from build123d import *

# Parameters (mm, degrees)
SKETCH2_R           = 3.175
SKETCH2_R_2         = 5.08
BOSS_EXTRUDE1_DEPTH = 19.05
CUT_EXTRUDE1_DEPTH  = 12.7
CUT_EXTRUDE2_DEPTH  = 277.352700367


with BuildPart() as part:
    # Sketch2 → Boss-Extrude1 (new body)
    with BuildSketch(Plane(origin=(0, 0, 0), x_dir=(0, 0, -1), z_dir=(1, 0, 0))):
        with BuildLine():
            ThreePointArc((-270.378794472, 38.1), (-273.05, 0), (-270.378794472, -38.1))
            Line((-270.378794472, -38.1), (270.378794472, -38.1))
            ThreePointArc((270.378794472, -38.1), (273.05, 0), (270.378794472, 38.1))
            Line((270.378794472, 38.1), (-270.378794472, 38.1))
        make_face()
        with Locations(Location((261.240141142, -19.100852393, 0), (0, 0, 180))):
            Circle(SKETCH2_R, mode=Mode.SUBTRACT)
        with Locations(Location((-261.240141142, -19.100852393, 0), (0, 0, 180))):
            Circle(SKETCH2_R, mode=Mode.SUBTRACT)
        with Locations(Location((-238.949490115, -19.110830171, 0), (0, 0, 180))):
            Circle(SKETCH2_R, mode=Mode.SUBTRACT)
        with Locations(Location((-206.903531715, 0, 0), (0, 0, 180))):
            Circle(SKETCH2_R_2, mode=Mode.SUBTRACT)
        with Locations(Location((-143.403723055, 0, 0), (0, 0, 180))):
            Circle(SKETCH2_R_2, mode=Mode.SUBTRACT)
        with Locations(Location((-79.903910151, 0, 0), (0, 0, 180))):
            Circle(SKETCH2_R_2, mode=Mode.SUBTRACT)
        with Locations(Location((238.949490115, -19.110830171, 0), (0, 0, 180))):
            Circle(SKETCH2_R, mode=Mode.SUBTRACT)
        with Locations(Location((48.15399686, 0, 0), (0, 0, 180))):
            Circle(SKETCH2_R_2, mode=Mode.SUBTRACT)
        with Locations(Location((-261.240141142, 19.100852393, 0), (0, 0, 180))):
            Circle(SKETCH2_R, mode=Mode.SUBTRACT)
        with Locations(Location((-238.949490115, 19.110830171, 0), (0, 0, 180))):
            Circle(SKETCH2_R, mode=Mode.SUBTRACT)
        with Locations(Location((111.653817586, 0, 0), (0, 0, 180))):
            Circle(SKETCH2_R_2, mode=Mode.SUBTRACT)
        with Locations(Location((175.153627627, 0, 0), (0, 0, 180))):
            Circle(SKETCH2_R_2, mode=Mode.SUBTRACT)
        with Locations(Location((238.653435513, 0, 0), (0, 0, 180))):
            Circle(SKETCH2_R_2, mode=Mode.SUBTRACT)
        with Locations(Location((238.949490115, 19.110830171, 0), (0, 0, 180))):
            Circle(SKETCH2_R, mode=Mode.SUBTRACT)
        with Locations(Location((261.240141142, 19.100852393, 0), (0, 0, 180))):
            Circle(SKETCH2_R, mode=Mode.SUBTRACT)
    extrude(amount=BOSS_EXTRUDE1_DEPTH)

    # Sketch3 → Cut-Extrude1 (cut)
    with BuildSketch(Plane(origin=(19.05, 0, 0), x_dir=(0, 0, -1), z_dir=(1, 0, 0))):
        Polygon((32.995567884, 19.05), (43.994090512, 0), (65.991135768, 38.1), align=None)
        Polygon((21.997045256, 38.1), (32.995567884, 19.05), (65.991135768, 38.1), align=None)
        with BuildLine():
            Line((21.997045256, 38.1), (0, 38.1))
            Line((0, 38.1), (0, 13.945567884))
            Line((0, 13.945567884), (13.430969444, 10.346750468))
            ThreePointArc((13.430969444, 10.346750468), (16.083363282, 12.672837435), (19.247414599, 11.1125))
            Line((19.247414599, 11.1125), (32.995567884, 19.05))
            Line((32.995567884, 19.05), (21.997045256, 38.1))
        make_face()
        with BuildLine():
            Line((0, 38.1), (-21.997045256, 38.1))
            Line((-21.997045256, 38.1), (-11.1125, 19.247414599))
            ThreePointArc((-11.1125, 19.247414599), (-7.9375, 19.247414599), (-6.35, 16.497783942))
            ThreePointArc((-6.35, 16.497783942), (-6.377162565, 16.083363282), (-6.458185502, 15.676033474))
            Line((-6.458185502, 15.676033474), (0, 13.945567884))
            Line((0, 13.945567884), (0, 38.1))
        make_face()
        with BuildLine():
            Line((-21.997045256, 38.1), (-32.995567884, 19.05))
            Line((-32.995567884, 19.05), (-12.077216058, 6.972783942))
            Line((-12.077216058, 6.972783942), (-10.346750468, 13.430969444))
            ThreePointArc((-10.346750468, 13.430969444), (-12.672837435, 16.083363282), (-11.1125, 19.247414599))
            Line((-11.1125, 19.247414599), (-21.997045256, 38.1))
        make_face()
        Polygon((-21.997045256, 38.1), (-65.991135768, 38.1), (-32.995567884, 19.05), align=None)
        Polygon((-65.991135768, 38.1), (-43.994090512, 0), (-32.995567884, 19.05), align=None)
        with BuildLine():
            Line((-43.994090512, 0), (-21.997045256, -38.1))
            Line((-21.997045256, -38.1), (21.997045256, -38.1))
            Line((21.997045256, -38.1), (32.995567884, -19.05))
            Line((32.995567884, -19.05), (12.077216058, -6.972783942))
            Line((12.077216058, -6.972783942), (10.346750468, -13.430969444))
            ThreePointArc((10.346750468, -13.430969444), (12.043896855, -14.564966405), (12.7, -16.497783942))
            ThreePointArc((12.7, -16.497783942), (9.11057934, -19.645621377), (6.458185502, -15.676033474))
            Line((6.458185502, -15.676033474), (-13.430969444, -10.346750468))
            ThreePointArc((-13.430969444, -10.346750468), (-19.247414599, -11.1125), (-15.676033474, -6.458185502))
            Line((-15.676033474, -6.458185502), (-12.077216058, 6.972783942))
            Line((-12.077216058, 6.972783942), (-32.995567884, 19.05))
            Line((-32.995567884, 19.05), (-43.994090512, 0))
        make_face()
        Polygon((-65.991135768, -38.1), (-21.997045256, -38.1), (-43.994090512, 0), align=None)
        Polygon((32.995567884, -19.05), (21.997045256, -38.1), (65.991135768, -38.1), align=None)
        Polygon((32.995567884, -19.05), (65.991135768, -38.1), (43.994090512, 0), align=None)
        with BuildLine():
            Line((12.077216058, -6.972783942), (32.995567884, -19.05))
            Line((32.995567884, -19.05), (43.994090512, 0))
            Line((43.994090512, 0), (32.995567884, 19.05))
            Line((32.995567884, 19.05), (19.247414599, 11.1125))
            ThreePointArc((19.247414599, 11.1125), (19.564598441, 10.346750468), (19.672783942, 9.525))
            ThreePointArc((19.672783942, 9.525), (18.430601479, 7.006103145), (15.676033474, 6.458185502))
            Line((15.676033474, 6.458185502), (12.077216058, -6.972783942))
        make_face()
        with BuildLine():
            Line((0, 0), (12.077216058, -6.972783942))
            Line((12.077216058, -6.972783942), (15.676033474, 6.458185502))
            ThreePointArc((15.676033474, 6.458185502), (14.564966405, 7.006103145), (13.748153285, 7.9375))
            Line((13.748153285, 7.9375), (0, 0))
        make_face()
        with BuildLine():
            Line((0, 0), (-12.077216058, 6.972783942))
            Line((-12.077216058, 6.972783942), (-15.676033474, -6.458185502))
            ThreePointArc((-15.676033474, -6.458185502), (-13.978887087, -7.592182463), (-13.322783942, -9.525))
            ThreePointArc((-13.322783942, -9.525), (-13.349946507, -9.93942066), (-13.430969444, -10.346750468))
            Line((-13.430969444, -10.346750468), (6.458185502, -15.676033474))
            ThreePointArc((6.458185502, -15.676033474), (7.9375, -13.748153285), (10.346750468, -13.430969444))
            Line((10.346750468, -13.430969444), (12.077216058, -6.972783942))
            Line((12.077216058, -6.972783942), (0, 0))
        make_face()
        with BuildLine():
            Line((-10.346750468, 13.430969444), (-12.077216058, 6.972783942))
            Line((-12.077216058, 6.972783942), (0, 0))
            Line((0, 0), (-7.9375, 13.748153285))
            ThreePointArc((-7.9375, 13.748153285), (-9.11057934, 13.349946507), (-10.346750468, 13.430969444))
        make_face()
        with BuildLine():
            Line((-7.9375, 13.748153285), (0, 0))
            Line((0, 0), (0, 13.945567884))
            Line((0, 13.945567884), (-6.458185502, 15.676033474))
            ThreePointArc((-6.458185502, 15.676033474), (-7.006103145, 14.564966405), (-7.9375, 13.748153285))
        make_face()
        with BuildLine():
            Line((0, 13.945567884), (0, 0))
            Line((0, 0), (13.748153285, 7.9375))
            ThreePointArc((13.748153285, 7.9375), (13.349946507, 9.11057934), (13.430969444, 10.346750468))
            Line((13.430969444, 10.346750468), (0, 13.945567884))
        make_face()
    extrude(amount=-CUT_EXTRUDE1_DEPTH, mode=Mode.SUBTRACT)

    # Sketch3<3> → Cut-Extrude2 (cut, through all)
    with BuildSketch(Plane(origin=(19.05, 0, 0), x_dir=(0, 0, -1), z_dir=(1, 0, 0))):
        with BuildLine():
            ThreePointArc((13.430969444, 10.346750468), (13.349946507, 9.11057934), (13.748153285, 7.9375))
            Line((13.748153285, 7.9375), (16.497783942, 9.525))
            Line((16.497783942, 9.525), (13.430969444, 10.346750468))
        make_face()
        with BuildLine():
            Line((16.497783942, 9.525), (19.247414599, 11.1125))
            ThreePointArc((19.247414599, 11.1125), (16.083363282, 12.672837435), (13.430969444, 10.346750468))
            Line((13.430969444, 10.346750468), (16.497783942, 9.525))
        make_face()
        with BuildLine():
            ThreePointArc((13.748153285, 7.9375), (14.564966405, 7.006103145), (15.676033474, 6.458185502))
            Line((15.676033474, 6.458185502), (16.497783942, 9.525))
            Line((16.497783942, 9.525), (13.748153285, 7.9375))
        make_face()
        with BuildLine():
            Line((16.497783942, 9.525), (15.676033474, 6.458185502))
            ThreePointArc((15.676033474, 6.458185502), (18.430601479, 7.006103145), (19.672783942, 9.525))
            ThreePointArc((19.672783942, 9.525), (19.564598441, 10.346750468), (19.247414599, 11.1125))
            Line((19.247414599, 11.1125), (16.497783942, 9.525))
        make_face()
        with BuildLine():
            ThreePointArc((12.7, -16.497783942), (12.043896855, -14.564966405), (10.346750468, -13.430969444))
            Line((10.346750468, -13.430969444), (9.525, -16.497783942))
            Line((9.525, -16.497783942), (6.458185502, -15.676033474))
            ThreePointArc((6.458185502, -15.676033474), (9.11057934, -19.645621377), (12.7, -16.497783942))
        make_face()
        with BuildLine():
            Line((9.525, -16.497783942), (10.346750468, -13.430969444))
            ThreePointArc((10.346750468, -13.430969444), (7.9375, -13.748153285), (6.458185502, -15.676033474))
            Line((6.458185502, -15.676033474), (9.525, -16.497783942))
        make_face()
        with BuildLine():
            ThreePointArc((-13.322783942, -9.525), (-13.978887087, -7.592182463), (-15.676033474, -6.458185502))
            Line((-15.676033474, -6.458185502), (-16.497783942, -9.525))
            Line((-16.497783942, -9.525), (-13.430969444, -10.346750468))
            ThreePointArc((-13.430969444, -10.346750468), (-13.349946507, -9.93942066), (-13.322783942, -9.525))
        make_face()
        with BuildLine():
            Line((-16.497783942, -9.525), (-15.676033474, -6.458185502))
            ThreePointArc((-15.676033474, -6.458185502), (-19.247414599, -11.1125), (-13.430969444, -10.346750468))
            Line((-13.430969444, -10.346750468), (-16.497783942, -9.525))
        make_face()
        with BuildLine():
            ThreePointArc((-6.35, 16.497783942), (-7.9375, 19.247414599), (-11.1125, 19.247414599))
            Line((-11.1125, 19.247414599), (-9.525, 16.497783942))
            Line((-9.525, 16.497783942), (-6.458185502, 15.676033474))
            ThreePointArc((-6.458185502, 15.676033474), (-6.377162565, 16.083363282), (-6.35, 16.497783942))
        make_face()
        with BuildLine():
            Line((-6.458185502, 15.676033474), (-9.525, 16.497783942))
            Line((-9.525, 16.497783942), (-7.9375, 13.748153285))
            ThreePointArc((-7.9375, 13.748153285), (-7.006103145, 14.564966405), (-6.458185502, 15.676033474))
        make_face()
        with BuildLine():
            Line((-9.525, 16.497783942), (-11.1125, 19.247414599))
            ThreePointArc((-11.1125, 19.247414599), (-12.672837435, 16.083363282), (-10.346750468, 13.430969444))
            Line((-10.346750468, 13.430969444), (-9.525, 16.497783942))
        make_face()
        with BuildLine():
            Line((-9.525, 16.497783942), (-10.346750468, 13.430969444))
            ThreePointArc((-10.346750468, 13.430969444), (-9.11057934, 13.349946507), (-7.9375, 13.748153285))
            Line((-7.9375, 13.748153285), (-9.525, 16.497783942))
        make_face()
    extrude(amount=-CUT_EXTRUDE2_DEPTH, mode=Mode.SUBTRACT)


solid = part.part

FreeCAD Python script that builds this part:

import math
import FreeCAD as App
import Part
import Sketcher

V = App.Vector
Q = App.Units.Quantity

doc = App.newDocument("Part")
params = doc.addObject("Spreadsheet::Sheet", "Params")
for row, (alias, value) in enumerate([
    ("sketch1_diameter", "0.4 in"),
    ("sketch1_diameter2", "0.25 in"),
    ("sketch1_radius", "10.75 in"),
    ("pad1_length", "0.75 in"),
    ("sketch2_radius", "0.125 in"),
    ("pocket1_length", "0.5 in"),
    ("sketch3_radius", "0.125 in"),
], start=1):
    params.set(f"A{row}", alias)
    params.set(f"B{row}", "=" + value)
    params.setAlias(f"B{row}", alias)

body = doc.addObject("PartDesign::Body", "Body")

# Sketch on YZ plane
sketch1 = body.newObject("Sketcher::SketchObject", "Sketch")
sketch1.AttachmentSupport = (doc.getObject("YZ_Plane"), [""])
sketch1.MapMode = "FlatFace"
sketch1.addGeometry([
    Part.ArcOfCircle(Part.Circle(V(0, 0, 0), V(0, 0, 1), 273.05), math.radians(81.979067), math.radians(98.020933)),  # 0
    Part.LineSegment(V(-38.1, 270.378794, 0), V(-38.1, -270.378794, 0)),  # 1
    Part.ArcOfCircle(Part.Circle(V(0, 0, 0), V(0, 0, 1), 273.05), math.radians(-98.020933), math.radians(-81.979067)),  # 2
    Part.LineSegment(V(38.1, -270.378794, 0), V(38.1, 270.378794, 0)),  # 3
    Part.Circle(V(-19.100852, 261.240141, 0), V(0, 0, 1), 3.175),  # 4
    Part.Circle(V(-19.11083, 238.94949, 0), V(0, 0, 1), 3.175),  # 5
    Part.Circle(V(-19.11083, -238.94949, 0), V(0, 0, 1), 3.175),  # 6
    Part.Circle(V(-19.100852, -261.240141, 0), V(0, 0, 1), 3.175),  # 7
    Part.Circle(V(0, 206.903532, 0), V(0, 0, 1), 5.08),  # 8
    Part.Circle(V(0, 143.403723, 0), V(0, 0, 1), 5.08),  # 9
    Part.Circle(V(0, 79.90391, 0), V(0, 0, 1), 5.08),  # 10
    Part.Circle(V(19.100852, 261.240141, 0), V(0, 0, 1), 3.175),  # 11
    Part.Circle(V(19.11083, 238.94949, 0), V(0, 0, 1), 3.175),  # 12
    Part.Circle(V(0, -48.153997, 0), V(0, 0, 1), 5.08),  # 13
    Part.Circle(V(0, -111.653818, 0), V(0, 0, 1), 5.08),  # 14
    Part.Circle(V(0, -175.153628, 0), V(0, 0, 1), 5.08),  # 15
    Part.Circle(V(0, -238.653436, 0), V(0, 0, 1), 5.08),  # 16
    Part.Circle(V(19.11083, -238.94949, 0), V(0, 0, 1), 3.175),  # 17
    Part.Circle(V(19.100852, -261.240141, 0), V(0, 0, 1), 3.175),  # 18
], False)
sketch1.addConstraint([
    Sketcher.Constraint("Coincident", 0, 2, 1, 1),
    Sketcher.Constraint("Coincident", 1, 2, 2, 1),
    Sketcher.Constraint("Coincident", 2, 2, 3, 1),
    Sketcher.Constraint("Coincident", 3, 2, 0, 1),
    Sketcher.Constraint("Vertical", 1),
    Sketcher.Constraint("Vertical", 3),
    Sketcher.Constraint("Coincident", 0, 3, -1, 1),
    Sketcher.Constraint("Coincident", 2, 3, -1, 1),
    Sketcher.Constraint("Equal", 0, 2),
    Sketcher.Constraint("Equal", 4, 5),
    Sketcher.Constraint("Equal", 5, 6),
    Sketcher.Constraint("Equal", 6, 7),
    Sketcher.Constraint("Equal", 8, 9),
    Sketcher.Constraint("Equal", 9, 10),
    Sketcher.Constraint("Equal", 7, 11),
    Sketcher.Constraint("Equal", 11, 12),
    Sketcher.Constraint("Equal", 10, 13),
    Sketcher.Constraint("Equal", 13, 14),
    Sketcher.Constraint("Equal", 14, 15),
    Sketcher.Constraint("Equal", 15, 16),
    Sketcher.Constraint("Equal", 12, 17),
    Sketcher.Constraint("Equal", 17, 18),
    Sketcher.Constraint("Symmetric", 7, 3, 11, 3, -1, 1),
    Sketcher.Constraint("Symmetric", 6, 3, 12, 3, -1, 1),
    Sketcher.Constraint("Symmetric", 5, 3, 17, 3, -1, 1),
    Sketcher.Constraint("Symmetric", 4, 3, 18, 3, -1, 1),
    Sketcher.Constraint("Symmetric", 4, 3, 11, 3, -2),
    Sketcher.Constraint("Symmetric", 5, 3, 12, 3, -2),
    Sketcher.Constraint("PointOnObject", 8, 3, -2),
    Sketcher.Constraint("PointOnObject", 9, 3, -2),
    Sketcher.Constraint("PointOnObject", 10, 3, -2),
    Sketcher.Constraint("PointOnObject", 13, 3, -2),
    Sketcher.Constraint("PointOnObject", 14, 3, -2),
    Sketcher.Constraint("PointOnObject", 15, 3, -2),
    Sketcher.Constraint("PointOnObject", 16, 3, -2),
    Sketcher.Constraint("Horizontal", 1, 2, 2, 2),
    Sketcher.Constraint("Diameter", 8, Q("0.4 in")),
    Sketcher.Constraint("Diameter", 4, Q("0.25 in")),
    Sketcher.Constraint("Radius", 0, Q("10.75 in")),
    Sketcher.Constraint("DistanceX", 1, 2, -1, 1, Q("1.5 in")),
    Sketcher.Constraint("DistanceY", -1, 1, 4, 3, 261.240141),
    Sketcher.Constraint("DistanceX", 5, 3, -1, 1, 19.11083),
    Sketcher.Constraint("DistanceY", -1, 1, 5, 3, 238.94949),
    Sketcher.Constraint("DistanceY", -1, 1, 8, 3, 206.903532),
    Sketcher.Constraint("DistanceY", -1, 1, 10, 3, 79.90391),
    Sketcher.Constraint("DistanceY", 9, 3, 8, 3, 63.499809),
    Sketcher.Constraint("DistanceY", 13, 3, 9, 3, 191.55772),
    Sketcher.Constraint("DistanceY", 14, 3, 13, 3, 63.499821),
    Sketcher.Constraint("DistanceY", 15, 3, 14, 3, 63.49981),
    Sketcher.Constraint("DistanceY", 16, 3, 13, 3, 190.499439),
    Sketcher.Constraint("DistanceX", 4, 3, -1, 1, 19.100852),
])
sketch1.setExpression("Constraints[36]", "Params.sketch1_diameter")
sketch1.setExpression("Constraints[37]", "Params.sketch1_diameter2")
sketch1.setExpression("Constraints[38]", "Params.sketch1_radius")
pad1 = body.newObject("PartDesign::Pad", "Pad")
pad1.Profile = sketch1
pad1.setExpression("Length", "Params.pad1_length")

# Sketch on YZ plane
sketch2 = body.newObject("Sketcher::SketchObject", "Sketch001")
sketch2.AttachmentSupport = (doc.getObject("YZ_Plane"), [""])
sketch2.MapMode = "FlatFace"
sketch2.AttachmentOffset = App.Placement(V(0, 0, 0.75 * 25.4), App.Rotation())
sketch2.addGeometry([
    Part.LineSegment(V(-38.1, -65.991136, 0), V(0, -43.994091, 0)),  # 0
    Part.LineSegment(V(0, -43.994091, 0), V(38.1, -65.991136, 0)),  # 1
    Part.LineSegment(V(38.1, -65.991136, 0), V(38.1, 65.991136, 0)),  # 2
    Part.LineSegment(V(38.1, 65.991136, 0), V(0, 43.994091, 0)),  # 3
    Part.LineSegment(V(0, 43.994091, 0), V(-38.1, 65.991136, 0)),  # 4
    Part.LineSegment(V(-38.1, 65.991136, 0), V(-38.1, -65.991136, 0)),  # 5
    Part.ArcOfCircle(Part.Circle(V(9.525, -16.497784, 0), V(0, 0, 1), 3.175), math.radians(-60), math.radians(75)),  # 6
    Part.ArcOfCircle(Part.Circle(V(9.525, -16.497784, 0), V(0, 0, 1), 3.175), math.radians(-90), math.radians(-60)),  # 7
    Part.ArcOfCircle(Part.Circle(V(9.525, -16.497784, 0), V(0, 0, 1), 3.175), math.radians(165), math.radians(270)),  # 8
    Part.ArcOfCircle(Part.Circle(V(9.525, -16.497784, 0), V(0, 0, 1), 3.175), math.radians(120), math.radians(165)),  # 9
    Part.ArcOfCircle(Part.Circle(V(9.525, -16.497784, 0), V(0, 0, 1), 3.175), math.radians(75), math.radians(120)),  # 10
    Part.ArcOfCircle(Part.Circle(V(16.497784, 9.525, 0), V(0, 0, 1), 3.175), math.radians(165), math.radians(210)),  # 11
    Part.ArcOfCircle(Part.Circle(V(16.497784, 9.525, 0), V(0, 0, 1), 3.175), math.radians(30), math.radians(165)),  # 12
    Part.ArcOfCircle(Part.Circle(V(16.497784, 9.525, 0), V(0, 0, 1), 3.175), math.radians(-90), math.radians(30)),  # 13
    Part.ArcOfCircle(Part.Circle(V(16.497784, 9.525, 0), V(0, 0, 1), 3.175), math.radians(-105), math.radians(-90)),  # 14
    Part.ArcOfCircle(Part.Circle(V(16.497784, 9.525, 0), V(0, 0, 1), 3.175), math.radians(-150), math.radians(-105)),  # 15
    Part.ArcOfCircle(Part.Circle(V(-16.497784, -9.525, 0), V(0, 0, 1), 3.175), math.radians(-90), math.radians(-15)),  # 16
    Part.ArcOfCircle(Part.Circle(V(-16.497784, -9.525, 0), V(0, 0, 1), 3.175), math.radians(75), math.radians(270)),  # 17
    Part.ArcOfCircle(Part.Circle(V(-16.497784, -9.525, 0), V(0, 0, 1), 3.175), math.radians(-15), math.radians(75)),  # 18
    Part.ArcOfCircle(Part.Circle(V(-9.525, 16.497784, 0), V(0, 0, 1), 3.175), math.radians(-15), math.radians(255)),  # 19
    Part.ArcOfCircle(Part.Circle(V(-9.525, 16.497784, 0), V(0, 0, 1), 3.175), math.radians(-90), math.radians(-15)),  # 20
    Part.ArcOfCircle(Part.Circle(V(-9.525, 16.497784, 0), V(0, 0, 1), 3.175), math.radians(-105), math.radians(-90)),  # 21
], False)
sketch2.addConstraint([
    Sketcher.Constraint("Coincident", 0, 2, 1, 1),
    Sketcher.Constraint("Coincident", 1, 2, 2, 1),
    Sketcher.Constraint("Coincident", 2, 2, 3, 1),
    Sketcher.Constraint("Coincident", 3, 2, 4, 1),
    Sketcher.Constraint("Coincident", 4, 2, 5, 1),
    Sketcher.Constraint("Coincident", 5, 2, 0, 1),
    Sketcher.Constraint("Tangent", 6, 1, 7, 2),
    Sketcher.Constraint("Tangent", 7, 1, 8, 2),
    Sketcher.Constraint("Tangent", 8, 1, 9, 2),
    Sketcher.Constraint("Tangent", 9, 1, 10, 2),
    Sketcher.Constraint("Tangent", 10, 1, 6, 2),
    Sketcher.Constraint("Tangent", 11, 1, 12, 2),
    Sketcher.Constraint("Tangent", 12, 1, 13, 2),
    Sketcher.Constraint("Tangent", 13, 1, 14, 2),
    Sketcher.Constraint("Tangent", 14, 1, 15, 2),
    Sketcher.Constraint("Tangent", 15, 1, 11, 2),
    Sketcher.Constraint("Tangent", 16, 1, 17, 2),
    Sketcher.Constraint("Tangent", 17, 1, 18, 2),
    Sketcher.Constraint("Tangent", 18, 1, 16, 2),
    Sketcher.Constraint("Tangent", 19, 1, 20, 2),
    Sketcher.Constraint("Tangent", 20, 1, 21, 2),
    Sketcher.Constraint("Tangent", 21, 1, 19, 2),
    Sketcher.Constraint("Vertical", 2),
    Sketcher.Constraint("Vertical", 5),
    Sketcher.Constraint("Coincident", 8, 3, 6, 3),
    Sketcher.Constraint("Coincident", 13, 3, 11, 3),
    Sketcher.Constraint("Equal", 10, 11),
    Sketcher.Constraint("Equal", 15, 16),
    Sketcher.Constraint("Equal", 18, 19),
    Sketcher.Constraint("Symmetric", 11, 3, 16, 3, -1, 1),
    Sketcher.Constraint("Symmetric", 6, 3, 19, 3, -1, 1),
    Sketcher.Constraint("Symmetric", 0, 2, 3, 2, -1, 1),
    Sketcher.Constraint("Symmetric", 1, 2, 4, 2, -1, 1),
    Sketcher.Constraint("PointOnObject", 0, 2, -2),
    Sketcher.Constraint("Parallel", 0, 3),
    Sketcher.Constraint("Horizontal", 2, 2, 4, 2),
    Sketcher.Constraint("Vertical", 10, 3, 7, 1),
    Sketcher.Constraint("Vertical", 15, 3, 13, 1),
    Sketcher.Constraint("Vertical", 18, 3, 16, 1),
    Sketcher.Constraint("Vertical", 21, 3, 20, 1),
    Sketcher.Constraint("Angle", 0, Q("30 deg")),
    Sketcher.Constraint("Radius", 6, Q("0.125 in")),
    Sketcher.Constraint("DistanceX", 4, 2, 2, 2, Q("3 in")),
    Sketcher.Constraint("DistanceY", 16, 1, -1, 1, Q("0.5 in")),
    Sketcher.Constraint("DistanceX", -1, 1, 6, 3, Q("0.375 in")),
    Sketcher.Constraint("DistanceX", -1, 1, 6, 1, Q("0.4375 in")),
    Sketcher.Constraint("DistanceX", -1, 1, 9, 1, Q("0.3125 in")),
    Sketcher.Constraint("DistanceY", -1, 1, 12, 1, Q("0.4375 in")),
    Sketcher.Constraint("DistanceY", -1, 1, 15, 1, Q("0.3125 in")),
    Sketcher.Constraint("DistanceY", 2, 1, 2, 2, 131.982272),
    Sketcher.Constraint("DistanceX", -1, 1, 10, 1, 10.34675),
    Sketcher.Constraint("DistanceY", 10, 1, -1, 1, 13.430969),
    Sketcher.Constraint("DistanceX", -1, 1, 11, 1, 13.430969),
    Sketcher.Constraint("DistanceY", -1, 1, 11, 1, 10.34675),
    Sketcher.Constraint("DistanceX", 18, 1, -1, 1, 13.430969),
    Sketcher.Constraint("DistanceX", 21, 1, -1, 1, 10.34675),
    Sketcher.Constraint("DistanceY", 10, 3, 8, 1, 0.82175),
    Sketcher.Constraint("DistanceX", 14, 1, 13, 1, 0.82175),
    Sketcher.Constraint("DistanceX", 18, 3, 17, 1, 0.82175),
    Sketcher.Constraint("DistanceY", 19, 1, 21, 3, 0.82175),
])
sketch2.setExpression("Constraints[41]", "Params.sketch2_radius")
pocket1 = body.newObject("PartDesign::Pocket", "Pocket")
pocket1.Profile = sketch2
pocket1.setExpression("Length", "Params.pocket1_length")

# Sketch on YZ plane
sketch3 = body.newObject("Sketcher::SketchObject", "Sketch002")
sketch3.AttachmentSupport = (doc.getObject("YZ_Plane"), [""])
sketch3.MapMode = "FlatFace"
sketch3.AttachmentOffset = App.Placement(V(0, 0, 0.75 * 25.4), App.Rotation())
sketch3.addGeometry([
    Part.ArcOfCircle(Part.Circle(V(9.525, -16.497784, 0), V(0, 0, 1), 3.175), math.radians(120), math.radians(165)),  # 0
    Part.ArcOfCircle(Part.Circle(V(9.525, -16.497784, 0), V(0, 0, 1), 3.175), math.radians(165), math.radians(270)),  # 1
    Part.ArcOfCircle(Part.Circle(V(9.525, -16.497784, 0), V(0, 0, 1), 3.175), math.radians(-90), math.radians(-60)),  # 2
    Part.ArcOfCircle(Part.Circle(V(9.525, -16.497784, 0), V(0, 0, 1), 3.175), math.radians(-60), math.radians(75)),  # 3
    Part.ArcOfCircle(Part.Circle(V(9.525, -16.497784, 0), V(0, 0, 1), 3.175), math.radians(75), math.radians(120)),  # 4
    Part.ArcOfCircle(Part.Circle(V(-16.497784, -9.525, 0), V(0, 0, 1), 3.175), math.radians(-90), math.radians(-15)),  # 5
    Part.ArcOfCircle(Part.Circle(V(-16.497784, -9.525, 0), V(0, 0, 1), 3.175), math.radians(-15), math.radians(75)),  # 6
    Part.ArcOfCircle(Part.Circle(V(-16.497784, -9.525, 0), V(0, 0, 1), 3.175), math.radians(75), math.radians(270)),  # 7
    Part.ArcOfCircle(Part.Circle(V(-9.525, 16.497784, 0), V(0, 0, 1), 3.175), math.radians(-90), math.radians(-15)),  # 8
    Part.ArcOfCircle(Part.Circle(V(-9.525, 16.497784, 0), V(0, 0, 1), 3.175), math.radians(-15), math.radians(255)),  # 9
    Part.ArcOfCircle(Part.Circle(V(-9.525, 16.497784, 0), V(0, 0, 1), 3.175), math.radians(-105), math.radians(-90)),  # 10
    Part.ArcOfCircle(Part.Circle(V(16.497784, 9.525, 0), V(0, 0, 1), 3.175), math.radians(30), math.radians(165)),  # 11
    Part.ArcOfCircle(Part.Circle(V(16.497784, 9.525, 0), V(0, 0, 1), 3.175), math.radians(165), math.radians(210)),  # 12
    Part.ArcOfCircle(Part.Circle(V(16.497784, 9.525, 0), V(0, 0, 1), 3.175), math.radians(-150), math.radians(-105)),  # 13
    Part.ArcOfCircle(Part.Circle(V(16.497784, 9.525, 0), V(0, 0, 1), 3.175), math.radians(-105), math.radians(-90)),  # 14
    Part.ArcOfCircle(Part.Circle(V(16.497784, 9.525, 0), V(0, 0, 1), 3.175), math.radians(-90), math.radians(30)),  # 15
], False)
sketch3.addConstraint([
    Sketcher.Constraint("Tangent", 0, 2, 1, 1),
    Sketcher.Constraint("Tangent", 1, 2, 2, 1),
    Sketcher.Constraint("Tangent", 2, 2, 3, 1),
    Sketcher.Constraint("Tangent", 3, 2, 4, 1),
    Sketcher.Constraint("Tangent", 4, 2, 0, 1),
    Sketcher.Constraint("Tangent", 5, 2, 6, 1),
    Sketcher.Constraint("Tangent", 6, 2, 7, 1),
    Sketcher.Constraint("Tangent", 7, 2, 5, 1),
    Sketcher.Constraint("Tangent", 8, 2, 9, 1),
    Sketcher.Constraint("Tangent", 9, 2, 10, 1),
    Sketcher.Constraint("Tangent", 10, 2, 8, 1),
    Sketcher.Constraint("Tangent", 11, 2, 12, 1),
    Sketcher.Constraint("Tangent", 12, 2, 13, 1),
    Sketcher.Constraint("Tangent", 13, 2, 14, 1),
    Sketcher.Constraint("Tangent", 14, 2, 15, 1),
    Sketcher.Constraint("Tangent", 15, 2, 11, 1),
    Sketcher.Constraint("Coincident", 2, 3, 0, 3),
    Sketcher.Constraint("Coincident", 13, 3, 11, 3),
    Sketcher.Constraint("Equal", 4, 5),
    Sketcher.Constraint("Equal", 7, 8),
    Sketcher.Constraint("Equal", 10, 11),
    Sketcher.Constraint("Symmetric", 0, 3, 8, 3, -1, 1),
    Sketcher.Constraint("Symmetric", 5, 3, 11, 3, -1, 1),
    Sketcher.Constraint("Vertical", 4, 3, 1, 2),
    Sketcher.Constraint("Vertical", 6, 3, 7, 2),
    Sketcher.Constraint("Vertical", 9, 3, 10, 2),
    Sketcher.Constraint("Vertical", 15, 3, 14, 2),
    Sketcher.Constraint("Radius", 0, Q("0.125 in")),
    Sketcher.Constraint("DistanceY", 7, 2, -1, 1, Q("0.5 in")),
    Sketcher.Constraint("DistanceX", 8, 3, 4, 3, Q("0.75 in")),
    Sketcher.Constraint("DistanceX", -1, 1, 2, 2, Q("0.4375 in")),
    Sketcher.Constraint("DistanceX", -1, 1, 4, 2, Q("0.3125 in")),
    Sketcher.Constraint("DistanceY", -1, 1, 12, 2, Q("0.3125 in")),
    Sketcher.Constraint("DistanceY", -1, 1, 15, 2, Q("0.4375 in")),
    Sketcher.Constraint("DistanceX", -1, 1, 3, 2, 10.34675),
    Sketcher.Constraint("DistanceY", 3, 2, -1, 1, 13.430969),
    Sketcher.Constraint("DistanceX", 5, 2, -1, 1, 13.430969),
    Sketcher.Constraint("DistanceY", 5, 2, -1, 1, 10.34675),
    Sketcher.Constraint("DistanceX", 9, 2, -1, 1, 10.34675),
    Sketcher.Constraint("DistanceX", -1, 1, 11, 2, 13.430969),
    Sketcher.Constraint("DistanceY", 4, 3, 0, 2, 0.82175),
    Sketcher.Constraint("DistanceX", 6, 3, 6, 2, 0.82175),
    Sketcher.Constraint("DistanceY", 8, 2, 10, 3, 0.82175),
    Sketcher.Constraint("DistanceX", 12, 2, 13, 2, 1.92788),
])
sketch3.setExpression("Constraints[27]", "Params.sketch3_radius")
pocket2 = body.newObject("PartDesign::Pocket", "Pocket001")
pocket2.Profile = sketch3
pocket2.Type = "ThroughAll"

doc.recompute()
